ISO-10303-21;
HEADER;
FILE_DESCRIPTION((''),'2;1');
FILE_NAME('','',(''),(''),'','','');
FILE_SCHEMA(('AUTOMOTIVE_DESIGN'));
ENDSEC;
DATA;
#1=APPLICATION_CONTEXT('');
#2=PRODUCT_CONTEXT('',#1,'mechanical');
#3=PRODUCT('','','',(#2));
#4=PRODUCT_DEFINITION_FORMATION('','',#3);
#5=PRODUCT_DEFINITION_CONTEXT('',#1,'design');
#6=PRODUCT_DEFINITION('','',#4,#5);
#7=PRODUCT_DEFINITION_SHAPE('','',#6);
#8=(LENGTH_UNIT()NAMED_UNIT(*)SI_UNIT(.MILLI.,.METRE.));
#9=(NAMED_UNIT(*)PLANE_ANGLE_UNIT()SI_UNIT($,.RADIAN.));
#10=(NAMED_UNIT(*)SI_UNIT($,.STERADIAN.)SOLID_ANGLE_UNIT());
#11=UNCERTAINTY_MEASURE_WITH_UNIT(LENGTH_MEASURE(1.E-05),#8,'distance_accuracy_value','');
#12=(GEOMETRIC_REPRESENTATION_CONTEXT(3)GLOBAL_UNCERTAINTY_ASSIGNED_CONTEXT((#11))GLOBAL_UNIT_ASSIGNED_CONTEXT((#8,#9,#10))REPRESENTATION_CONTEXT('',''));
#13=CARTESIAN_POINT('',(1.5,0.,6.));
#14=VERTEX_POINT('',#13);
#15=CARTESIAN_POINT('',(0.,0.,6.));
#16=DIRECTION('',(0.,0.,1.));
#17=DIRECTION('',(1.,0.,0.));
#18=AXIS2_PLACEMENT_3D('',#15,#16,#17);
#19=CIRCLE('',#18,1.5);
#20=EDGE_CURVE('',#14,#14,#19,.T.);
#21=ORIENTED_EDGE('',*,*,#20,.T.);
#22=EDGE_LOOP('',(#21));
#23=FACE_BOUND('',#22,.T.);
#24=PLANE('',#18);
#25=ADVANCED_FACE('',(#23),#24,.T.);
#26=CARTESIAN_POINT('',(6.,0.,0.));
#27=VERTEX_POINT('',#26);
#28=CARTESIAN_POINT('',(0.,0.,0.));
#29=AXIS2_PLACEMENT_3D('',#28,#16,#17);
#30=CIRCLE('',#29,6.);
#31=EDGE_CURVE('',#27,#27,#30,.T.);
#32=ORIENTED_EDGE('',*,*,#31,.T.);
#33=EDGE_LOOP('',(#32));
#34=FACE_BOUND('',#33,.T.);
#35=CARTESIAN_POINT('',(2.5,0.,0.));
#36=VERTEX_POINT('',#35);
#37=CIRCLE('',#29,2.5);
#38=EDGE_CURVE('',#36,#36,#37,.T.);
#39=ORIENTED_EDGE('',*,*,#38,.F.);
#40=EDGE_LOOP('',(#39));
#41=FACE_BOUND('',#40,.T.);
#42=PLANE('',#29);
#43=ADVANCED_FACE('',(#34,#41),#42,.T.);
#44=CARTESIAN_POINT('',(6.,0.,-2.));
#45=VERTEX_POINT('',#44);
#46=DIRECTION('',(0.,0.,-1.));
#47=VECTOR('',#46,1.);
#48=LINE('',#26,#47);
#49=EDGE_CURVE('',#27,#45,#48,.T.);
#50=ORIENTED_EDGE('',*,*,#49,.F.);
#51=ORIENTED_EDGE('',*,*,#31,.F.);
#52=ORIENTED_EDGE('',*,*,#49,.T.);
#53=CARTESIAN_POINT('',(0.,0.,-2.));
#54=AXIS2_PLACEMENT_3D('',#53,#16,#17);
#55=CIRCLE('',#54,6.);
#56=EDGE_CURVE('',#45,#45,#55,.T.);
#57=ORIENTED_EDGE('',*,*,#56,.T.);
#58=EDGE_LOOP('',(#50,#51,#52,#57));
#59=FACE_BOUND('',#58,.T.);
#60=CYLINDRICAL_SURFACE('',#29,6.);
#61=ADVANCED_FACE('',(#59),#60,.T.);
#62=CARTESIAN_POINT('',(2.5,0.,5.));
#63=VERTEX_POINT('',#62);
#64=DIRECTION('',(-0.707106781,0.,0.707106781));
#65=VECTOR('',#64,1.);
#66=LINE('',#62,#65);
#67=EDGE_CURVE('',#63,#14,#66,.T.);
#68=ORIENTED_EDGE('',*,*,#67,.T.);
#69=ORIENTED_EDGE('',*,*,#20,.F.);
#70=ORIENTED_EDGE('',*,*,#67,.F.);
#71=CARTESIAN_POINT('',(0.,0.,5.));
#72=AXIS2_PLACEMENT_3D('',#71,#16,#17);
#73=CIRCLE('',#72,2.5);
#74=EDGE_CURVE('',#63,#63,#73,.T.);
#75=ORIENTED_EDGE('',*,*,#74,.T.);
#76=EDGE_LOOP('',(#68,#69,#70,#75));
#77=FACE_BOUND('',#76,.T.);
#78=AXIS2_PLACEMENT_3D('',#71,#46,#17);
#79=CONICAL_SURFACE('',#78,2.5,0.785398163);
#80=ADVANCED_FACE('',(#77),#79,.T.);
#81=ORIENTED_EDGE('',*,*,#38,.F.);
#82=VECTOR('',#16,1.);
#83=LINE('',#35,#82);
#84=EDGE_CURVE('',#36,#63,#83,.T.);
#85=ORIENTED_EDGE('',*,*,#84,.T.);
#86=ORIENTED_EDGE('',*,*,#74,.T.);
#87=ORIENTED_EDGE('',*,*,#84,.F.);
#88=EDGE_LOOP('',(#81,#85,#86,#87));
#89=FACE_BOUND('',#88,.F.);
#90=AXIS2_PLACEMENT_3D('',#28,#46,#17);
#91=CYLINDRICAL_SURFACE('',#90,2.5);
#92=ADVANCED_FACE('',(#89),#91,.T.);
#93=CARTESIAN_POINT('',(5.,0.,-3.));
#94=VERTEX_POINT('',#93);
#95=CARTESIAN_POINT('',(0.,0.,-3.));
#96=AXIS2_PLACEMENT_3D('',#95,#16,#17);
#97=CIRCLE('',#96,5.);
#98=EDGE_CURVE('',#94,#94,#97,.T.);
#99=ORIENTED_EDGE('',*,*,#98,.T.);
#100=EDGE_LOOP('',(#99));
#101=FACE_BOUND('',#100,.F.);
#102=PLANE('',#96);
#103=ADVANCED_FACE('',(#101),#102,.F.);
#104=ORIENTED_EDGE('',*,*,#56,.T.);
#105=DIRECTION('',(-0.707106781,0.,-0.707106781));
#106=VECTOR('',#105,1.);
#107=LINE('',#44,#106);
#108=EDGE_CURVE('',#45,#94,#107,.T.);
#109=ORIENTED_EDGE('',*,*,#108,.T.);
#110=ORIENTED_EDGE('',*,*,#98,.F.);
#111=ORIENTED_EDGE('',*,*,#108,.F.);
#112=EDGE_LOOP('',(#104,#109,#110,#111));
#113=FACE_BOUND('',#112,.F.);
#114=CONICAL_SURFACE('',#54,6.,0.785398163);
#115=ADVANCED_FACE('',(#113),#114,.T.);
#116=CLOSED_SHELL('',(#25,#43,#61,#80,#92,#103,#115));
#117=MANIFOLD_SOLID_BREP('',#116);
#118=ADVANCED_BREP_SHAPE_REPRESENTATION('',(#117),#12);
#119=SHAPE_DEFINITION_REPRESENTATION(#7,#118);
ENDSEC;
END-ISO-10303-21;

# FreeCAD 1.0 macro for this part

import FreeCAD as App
import Part
import Sketcher
Q = App.Units.Quantity


def edges_at(feature, points):
    """Names of the edges that pass closest to the given points."""
    edges = feature.Shape.Edges
    near = lambda p: min(range(len(edges)), key=lambda i: edges[i].distToShape(Part.Vertex(*p))[0])
    return sorted({f"Edge{near(p) + 1}" for p in points})

doc = App.newDocument("Part")
params = doc.addObject("Spreadsheet::Sheet", "Params")
for row, (alias, value) in enumerate([
    ("sketch1_diameter", "12 mm"),
    ("pad1_length", "3 mm"),
    ("sketch2_diameter", "5 mm"),
    ("pad2_length", "6 mm"),
    ("chamfer_size", "1 mm"),
], start=1):
    params.set(f"A{row}", alias)
    params.set(f"B{row}", "=" + value)
    params.setAlias(f"B{row}", alias)

body = doc.addObject("PartDesign::Body", "Body")

sketch1 = doc.addObject("Sketcher::SketchObject", "Sketch")
body.addObject(sketch1)
sketch1.AttachmentSupport = (doc.XY_Plane, [""])
sketch1.MapMode = "FlatFace"
sketch1.addGeometry(Part.Circle(App.Vector(0, 0, 0), App.Vector(0, 0, 1), 6), False)
sketch1.addConstraint([
    Sketcher.Constraint("Coincident", 0, 3, -1, 1),
    Sketcher.Constraint("Diameter", 0, Q("12 mm")),
])
sketch1.setExpression("Constraints[1]", "Params.sketch1_diameter")
pad1 = doc.addObject("PartDesign::Pad", "Pad")
body.addObject(pad1)
pad1.Profile = sketch1
pad1.setExpression("Length", "Params.pad1_length")
pad1.Reversed = True

sketch2 = doc.addObject("Sketcher::SketchObject", "Sketch001")
body.addObject(sketch2)
sketch2.AttachmentSupport = (doc.XY_Plane, [""])
sketch2.MapMode = "FlatFace"
sketch2.addGeometry(Part.Circle(App.Vector(0, 0, 0), App.Vector(0, 0, 1), 2.5), False)
sketch2.addConstraint([
    Sketcher.Constraint("Coincident", 0, 3, -1, 1),
    Sketcher.Constraint("Diameter", 0, Q("5 mm")),
])
sketch2.setExpression("Constraints[1]", "Params.sketch2_diameter")
pad2 = doc.addObject("PartDesign::Pad", "Pad001")
body.addObject(pad2)
pad2.Profile = sketch2
pad2.setExpression("Length", "Params.pad2_length")
doc.recompute()

chamfer = doc.addObject("PartDesign::Chamfer", "Chamfer")
body.addObject(chamfer)
chamfer.Base = (pad2, edges_at(pad2, [(-2.5, 0, 6), (-6, 0, -3)]))
chamfer.setExpression("Size", "Params.chamfer_size")

doc.recompute()
